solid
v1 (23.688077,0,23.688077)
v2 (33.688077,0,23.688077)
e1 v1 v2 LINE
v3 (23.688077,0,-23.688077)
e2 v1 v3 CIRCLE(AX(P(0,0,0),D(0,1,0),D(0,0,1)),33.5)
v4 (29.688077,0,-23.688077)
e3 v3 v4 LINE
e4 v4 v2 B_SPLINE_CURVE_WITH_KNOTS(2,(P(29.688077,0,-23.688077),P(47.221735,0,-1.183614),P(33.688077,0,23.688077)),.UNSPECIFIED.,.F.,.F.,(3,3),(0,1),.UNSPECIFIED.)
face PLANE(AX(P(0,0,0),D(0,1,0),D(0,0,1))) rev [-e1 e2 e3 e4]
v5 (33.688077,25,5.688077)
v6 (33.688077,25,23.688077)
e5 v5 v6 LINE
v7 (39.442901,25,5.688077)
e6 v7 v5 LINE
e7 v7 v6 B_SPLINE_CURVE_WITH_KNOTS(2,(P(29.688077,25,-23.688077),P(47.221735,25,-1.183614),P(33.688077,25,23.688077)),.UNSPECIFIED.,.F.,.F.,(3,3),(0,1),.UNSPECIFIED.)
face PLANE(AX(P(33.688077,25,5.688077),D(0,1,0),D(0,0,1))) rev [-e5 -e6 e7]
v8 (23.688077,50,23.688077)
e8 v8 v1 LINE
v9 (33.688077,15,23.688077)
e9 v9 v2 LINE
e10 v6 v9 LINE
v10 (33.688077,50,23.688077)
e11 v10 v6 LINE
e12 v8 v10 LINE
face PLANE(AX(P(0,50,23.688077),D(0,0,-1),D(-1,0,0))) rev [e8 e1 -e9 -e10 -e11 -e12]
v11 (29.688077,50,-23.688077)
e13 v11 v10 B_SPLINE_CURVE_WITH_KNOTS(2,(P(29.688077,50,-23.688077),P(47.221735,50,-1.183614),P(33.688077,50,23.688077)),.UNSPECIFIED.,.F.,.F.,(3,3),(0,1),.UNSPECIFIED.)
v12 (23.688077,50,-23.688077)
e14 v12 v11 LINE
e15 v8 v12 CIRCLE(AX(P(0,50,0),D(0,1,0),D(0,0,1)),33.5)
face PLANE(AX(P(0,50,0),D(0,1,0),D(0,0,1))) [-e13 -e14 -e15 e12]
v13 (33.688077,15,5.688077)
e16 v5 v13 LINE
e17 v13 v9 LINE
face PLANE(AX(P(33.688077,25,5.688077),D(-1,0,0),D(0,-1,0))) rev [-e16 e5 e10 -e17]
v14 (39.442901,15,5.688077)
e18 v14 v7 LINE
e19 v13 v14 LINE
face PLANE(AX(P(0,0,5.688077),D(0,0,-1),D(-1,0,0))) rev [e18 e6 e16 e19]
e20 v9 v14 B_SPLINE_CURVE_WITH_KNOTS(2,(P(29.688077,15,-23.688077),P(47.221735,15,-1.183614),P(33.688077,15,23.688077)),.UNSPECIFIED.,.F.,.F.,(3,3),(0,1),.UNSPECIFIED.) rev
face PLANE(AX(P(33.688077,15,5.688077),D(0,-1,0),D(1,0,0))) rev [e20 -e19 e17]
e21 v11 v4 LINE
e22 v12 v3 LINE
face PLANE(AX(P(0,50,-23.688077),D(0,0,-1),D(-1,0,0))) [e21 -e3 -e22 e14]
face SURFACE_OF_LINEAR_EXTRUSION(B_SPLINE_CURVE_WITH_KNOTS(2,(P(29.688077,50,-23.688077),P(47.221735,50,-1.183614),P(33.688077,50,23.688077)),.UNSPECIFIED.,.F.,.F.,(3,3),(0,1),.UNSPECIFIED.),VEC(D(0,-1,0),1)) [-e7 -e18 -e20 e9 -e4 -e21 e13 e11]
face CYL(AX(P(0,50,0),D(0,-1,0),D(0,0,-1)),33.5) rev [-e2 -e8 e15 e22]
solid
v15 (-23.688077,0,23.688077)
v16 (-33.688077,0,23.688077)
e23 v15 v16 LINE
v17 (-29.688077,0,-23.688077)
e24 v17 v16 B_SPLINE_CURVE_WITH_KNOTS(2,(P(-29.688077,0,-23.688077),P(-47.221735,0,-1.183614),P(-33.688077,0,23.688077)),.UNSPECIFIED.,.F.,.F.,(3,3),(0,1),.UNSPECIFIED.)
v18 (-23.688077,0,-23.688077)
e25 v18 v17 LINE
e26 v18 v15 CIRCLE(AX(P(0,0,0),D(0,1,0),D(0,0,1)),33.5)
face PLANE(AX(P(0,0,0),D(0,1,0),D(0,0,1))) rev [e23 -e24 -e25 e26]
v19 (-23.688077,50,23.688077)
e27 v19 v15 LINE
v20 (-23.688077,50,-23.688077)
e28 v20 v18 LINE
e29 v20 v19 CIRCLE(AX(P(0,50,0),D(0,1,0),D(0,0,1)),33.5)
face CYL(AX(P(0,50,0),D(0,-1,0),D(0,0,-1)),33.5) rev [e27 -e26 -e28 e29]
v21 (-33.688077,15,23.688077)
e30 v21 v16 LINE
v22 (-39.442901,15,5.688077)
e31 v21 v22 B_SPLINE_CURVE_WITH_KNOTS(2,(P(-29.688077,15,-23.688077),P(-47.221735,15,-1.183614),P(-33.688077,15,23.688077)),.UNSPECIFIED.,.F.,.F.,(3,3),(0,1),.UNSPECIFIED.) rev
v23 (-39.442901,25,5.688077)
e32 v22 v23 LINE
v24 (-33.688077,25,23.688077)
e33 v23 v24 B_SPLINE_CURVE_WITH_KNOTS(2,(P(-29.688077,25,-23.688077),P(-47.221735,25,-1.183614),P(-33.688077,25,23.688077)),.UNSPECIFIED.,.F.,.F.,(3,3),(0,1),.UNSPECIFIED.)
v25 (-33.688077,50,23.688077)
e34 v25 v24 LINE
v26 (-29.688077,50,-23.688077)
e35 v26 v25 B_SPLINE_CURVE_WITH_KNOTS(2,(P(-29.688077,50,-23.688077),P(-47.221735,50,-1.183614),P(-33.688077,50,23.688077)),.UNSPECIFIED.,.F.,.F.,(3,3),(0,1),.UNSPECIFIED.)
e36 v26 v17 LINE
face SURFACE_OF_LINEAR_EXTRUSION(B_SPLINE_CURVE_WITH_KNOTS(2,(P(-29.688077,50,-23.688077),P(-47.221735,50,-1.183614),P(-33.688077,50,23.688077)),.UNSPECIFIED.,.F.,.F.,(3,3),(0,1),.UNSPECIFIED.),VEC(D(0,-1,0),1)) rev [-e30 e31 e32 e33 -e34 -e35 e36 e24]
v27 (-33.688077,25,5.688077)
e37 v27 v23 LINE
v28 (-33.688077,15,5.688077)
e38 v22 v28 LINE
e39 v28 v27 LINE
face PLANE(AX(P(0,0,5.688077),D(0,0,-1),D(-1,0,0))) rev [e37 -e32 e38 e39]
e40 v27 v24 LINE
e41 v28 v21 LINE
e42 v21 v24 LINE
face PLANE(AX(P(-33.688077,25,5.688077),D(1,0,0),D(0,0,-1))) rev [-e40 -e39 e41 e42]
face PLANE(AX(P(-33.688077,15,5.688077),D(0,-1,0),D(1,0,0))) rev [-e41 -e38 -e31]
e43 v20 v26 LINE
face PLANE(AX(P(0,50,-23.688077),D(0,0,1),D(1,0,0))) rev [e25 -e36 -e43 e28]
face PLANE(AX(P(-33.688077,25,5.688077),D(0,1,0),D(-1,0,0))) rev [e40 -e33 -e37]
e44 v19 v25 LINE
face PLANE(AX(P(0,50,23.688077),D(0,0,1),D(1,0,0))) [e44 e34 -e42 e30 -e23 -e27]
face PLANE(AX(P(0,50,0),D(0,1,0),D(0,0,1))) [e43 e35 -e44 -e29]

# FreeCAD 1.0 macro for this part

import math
import FreeCAD as App
import Part
import Sketcher


def add_polygon(sketch, points):
    """Adds a closed chain of lines whose ends are joined by coincident constraints."""
    first, n = sketch.GeometryCount, len(points)
    for a, b in zip(points, points[1:] + points[:1]):
        sketch.addGeometry(Part.LineSegment(App.Vector(*a, 0), App.Vector(*b, 0)), False)
    for i in range(n):
        sketch.addConstraint(Sketcher.Constraint("Coincident", first + i, 2, first + (i + 1) % n, 1))

doc = App.newDocument("Part")
body = doc.addObject("PartDesign::Body", "Body")

sketch1 = doc.addObject("Sketcher::SketchObject", "Sketch")
body.addObject(sketch1)
sketch1.AttachmentSupport = (doc.XZ_Plane, [""])
sketch1.MapMode = "FlatFace"
sketch1.addGeometry([
    Part.ArcOfCircle(Part.Circle(App.Vector(0, 0, 0), App.Vector(0, 0, 1), 33.5), math.radians(135), math.radians(225)),
    Part.LineSegment(App.Vector(-23.688077, -23.688077, 0), App.Vector(-29.688077, -23.688077, 0)),
    Part.BSplineCurve([App.Vector(-29.688077, -23.688077, 0), App.Vector(-47.221735, -1.183614, 0), App.Vector(-33.688077, 23.688077, 0)], [3, 3], [0, 1], False, 2, [1, 1, 1], False),
    Part.LineSegment(App.Vector(-33.688077, 23.688077, 0), App.Vector(-23.688077, 23.688077, 0)),
], False)
sketch1.addConstraint([
    Sketcher.Constraint("Block", 2),
    Sketcher.Constraint("Coincident", 0, 2, 1, 1),
    Sketcher.Constraint("Coincident", 1, 2, 2, 1),
    Sketcher.Constraint("Coincident", 2, 2, 3, 1),
    Sketcher.Constraint("Coincident", 3, 2, 0, 1),
    Sketcher.Constraint("Horizontal", 1),
    Sketcher.Constraint("Horizontal", 3),
    Sketcher.Constraint("Coincident", 0, 3, -1, 1),
    Sketcher.Constraint("Radius", 0, 33.5),
])
pad1 = doc.addObject("PartDesign::Pad", "Pad")
body.addObject(pad1)
pad1.Profile = sketch1
pad1.Length = 50
pad1.Reversed = True
body2 = doc.addObject("PartDesign::Body", "Body001")

sketch2 = doc.addObject("Sketcher::SketchObject", "Sketch001")
body2.addObject(sketch2)
sketch2.AttachmentSupport = (doc.getObject("XZ_Plane001"), [""])
sketch2.MapMode = "FlatFace"
sketch2.addGeometry([
    Part.LineSegment(App.Vector(29.688077, -23.688077, 0), App.Vector(23.688077, -23.688077, 0)),
    Part.ArcOfCircle(Part.Circle(App.Vector(0, 0, 0), App.Vector(0, 0, 1), 33.5), math.radians(-45), math.radians(45)),
    Part.LineSegment(App.Vector(23.688077, 23.688077, 0), App.Vector(33.688077, 23.688077, 0)),
    Part.BSplineCurve([App.Vector(29.688077, -23.688077, 0), App.Vector(47.221735, -1.183614, 0), App.Vector(33.688077, 23.688077, 0)], [3, 3], [0, 1], False, 2, [1, 1, 1], False),
], False)
sketch2.addConstraint([
    Sketcher.Constraint("Block", 3),
    Sketcher.Constraint("Coincident", 0, 2, 1, 1),
    Sketcher.Constraint("Coincident", 1, 2, 2, 1),
    Sketcher.Constraint("Coincident", 2, 2, 3, 2),
    Sketcher.Constraint("Coincident", 3, 1, 0, 1),
    Sketcher.Constraint("Horizontal", 0),
    Sketcher.Constraint("Horizontal", 2),
    Sketcher.Constraint("Coincident", 1, 3, -1, 1),
    Sketcher.Constraint("Radius", 1, 33.5),
])
pad2 = doc.addObject("PartDesign::Pad", "Pad001")
body2.addObject(pad2)
pad2.Profile = sketch2
pad2.Length = 50
pad2.Reversed = True
body3 = doc.addObject("PartDesign::Body", "Body002")
body3.AllowCompound = True

sketch3 = doc.addObject("Sketcher::SketchObject", "Sketch002")
body3.addObject(sketch3)
sketch3.AttachmentSupport = (doc.getObject("XY_Plane002"), [""])
sketch3.MapMode = "FlatFace"
sketch3.AttachmentOffset = App.Placement(App.Vector(0, 0, 23.688077), App.Rotation())
add_polygon(sketch3, [(-42, 25), (-42, 15), (-34, 15), (-34, 25)])
add_polygon(sketch3, [(34, 25), (34, 15), (42, 15), (42, 25)])
sketch3.addConstraint([
    Sketcher.Constraint("Vertical", 0),
    Sketcher.Constraint("Horizontal", 1),
    Sketcher.Constraint("Vertical", 2),
    Sketcher.Constraint("Horizontal", 3),
    Sketcher.Constraint("Vertical", 4),
    Sketcher.Constraint("Horizontal", 5),
    Sketcher.Constraint("Vertical", 6),
    Sketcher.Constraint("Horizontal", 7),
    Sketcher.Constraint("Symmetric", 1, 2, 4, 2, -2),
    Sketcher.Constraint("Symmetric", 3, 2, 6, 2, -2),
    Sketcher.Constraint("DistanceX", 1, 1, 1, 2, 8.0),
    Sketcher.Constraint("DistanceY", 0, 2, 0, 1, 10.0),
    Sketcher.Constraint("DistanceY", -1, 1, 0, 2, 15.0),
    Sketcher.Constraint("DistanceX", 0, 2, -1, 1, 41.688077),
])
pad3 = doc.addObject("PartDesign::Pad", "Pad002")
body3.addObject(pad3)
pad3.Profile = sketch3
pad3.Length = 18
pad3.Reversed = True
doc.recompute()

body4 = doc.addObject("PartDesign::Body", "Body003")
body4.BaseFeature = body3
boolean = doc.addObject("PartDesign::Boolean", "Boolean")
body.addObject(boolean)
boolean.Type = "Cut"
boolean.addObjects([body4])
doc.recompute()

boolean2 = doc.addObject("PartDesign::Boolean", "Boolean001")
body2.addObject(boolean2)
boolean2.Type = "Cut"
boolean2.addObjects([body3])

doc.recompute()
